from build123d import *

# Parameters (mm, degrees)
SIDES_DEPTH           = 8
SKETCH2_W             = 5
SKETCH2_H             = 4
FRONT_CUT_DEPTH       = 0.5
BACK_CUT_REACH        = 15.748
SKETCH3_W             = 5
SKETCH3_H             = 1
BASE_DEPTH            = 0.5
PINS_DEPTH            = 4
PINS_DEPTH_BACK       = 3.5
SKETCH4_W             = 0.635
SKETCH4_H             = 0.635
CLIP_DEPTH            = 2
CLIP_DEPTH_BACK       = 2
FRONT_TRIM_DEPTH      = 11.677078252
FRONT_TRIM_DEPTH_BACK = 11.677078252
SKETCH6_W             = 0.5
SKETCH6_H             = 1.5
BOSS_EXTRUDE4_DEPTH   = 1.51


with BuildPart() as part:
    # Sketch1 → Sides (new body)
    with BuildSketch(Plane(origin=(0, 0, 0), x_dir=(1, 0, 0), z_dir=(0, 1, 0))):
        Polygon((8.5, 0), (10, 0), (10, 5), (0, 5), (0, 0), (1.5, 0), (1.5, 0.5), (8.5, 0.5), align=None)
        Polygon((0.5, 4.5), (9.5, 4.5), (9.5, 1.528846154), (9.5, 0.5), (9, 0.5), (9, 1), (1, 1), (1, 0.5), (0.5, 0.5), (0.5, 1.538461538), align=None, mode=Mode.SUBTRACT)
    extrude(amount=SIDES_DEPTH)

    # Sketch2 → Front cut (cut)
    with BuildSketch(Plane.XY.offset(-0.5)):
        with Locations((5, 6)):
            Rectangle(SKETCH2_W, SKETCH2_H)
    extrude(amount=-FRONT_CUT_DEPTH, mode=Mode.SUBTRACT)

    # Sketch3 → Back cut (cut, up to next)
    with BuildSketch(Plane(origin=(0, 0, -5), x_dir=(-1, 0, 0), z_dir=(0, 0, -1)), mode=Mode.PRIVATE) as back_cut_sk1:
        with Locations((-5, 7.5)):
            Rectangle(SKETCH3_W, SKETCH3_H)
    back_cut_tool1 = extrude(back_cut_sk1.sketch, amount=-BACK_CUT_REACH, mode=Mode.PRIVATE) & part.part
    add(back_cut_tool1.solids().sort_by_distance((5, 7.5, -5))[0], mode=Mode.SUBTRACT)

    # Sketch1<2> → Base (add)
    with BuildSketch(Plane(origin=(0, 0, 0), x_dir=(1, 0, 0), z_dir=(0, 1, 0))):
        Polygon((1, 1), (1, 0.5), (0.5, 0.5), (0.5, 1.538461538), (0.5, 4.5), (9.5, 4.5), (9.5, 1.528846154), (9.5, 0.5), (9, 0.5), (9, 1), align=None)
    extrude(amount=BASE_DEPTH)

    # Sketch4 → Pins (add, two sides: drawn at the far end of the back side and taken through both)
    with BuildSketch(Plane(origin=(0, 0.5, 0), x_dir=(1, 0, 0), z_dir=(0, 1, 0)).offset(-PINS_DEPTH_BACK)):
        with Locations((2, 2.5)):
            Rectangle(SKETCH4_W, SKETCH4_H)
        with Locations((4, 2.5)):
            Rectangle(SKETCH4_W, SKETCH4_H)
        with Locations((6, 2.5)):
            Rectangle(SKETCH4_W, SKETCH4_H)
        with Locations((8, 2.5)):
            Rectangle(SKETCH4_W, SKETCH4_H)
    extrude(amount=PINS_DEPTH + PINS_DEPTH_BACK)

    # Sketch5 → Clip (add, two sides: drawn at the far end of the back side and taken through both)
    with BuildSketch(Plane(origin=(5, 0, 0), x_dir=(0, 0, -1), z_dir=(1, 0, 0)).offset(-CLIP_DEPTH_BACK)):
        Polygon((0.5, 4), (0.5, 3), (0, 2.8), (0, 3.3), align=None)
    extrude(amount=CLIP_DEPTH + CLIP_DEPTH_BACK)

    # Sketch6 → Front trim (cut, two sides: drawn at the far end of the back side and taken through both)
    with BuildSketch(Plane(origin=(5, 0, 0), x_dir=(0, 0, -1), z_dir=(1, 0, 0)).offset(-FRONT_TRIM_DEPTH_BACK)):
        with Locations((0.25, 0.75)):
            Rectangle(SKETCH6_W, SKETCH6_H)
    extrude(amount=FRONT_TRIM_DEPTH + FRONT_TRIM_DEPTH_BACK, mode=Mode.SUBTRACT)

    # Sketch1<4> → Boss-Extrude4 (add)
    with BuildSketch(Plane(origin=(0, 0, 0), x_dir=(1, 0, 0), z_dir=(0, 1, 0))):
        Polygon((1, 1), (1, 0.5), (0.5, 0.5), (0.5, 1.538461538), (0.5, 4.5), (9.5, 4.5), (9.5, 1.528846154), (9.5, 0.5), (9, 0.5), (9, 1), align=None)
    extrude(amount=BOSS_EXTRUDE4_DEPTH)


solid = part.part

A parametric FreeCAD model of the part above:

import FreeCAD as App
import Part
import Sketcher

V = App.Vector


def add_polygon(sketch, points):
    """Adds a closed chain of lines whose ends are joined by coincident constraints."""
    first, n = sketch.GeometryCount, len(points)
    for a, b in zip(points, points[1:] + points[:1]):
        sketch.addGeometry(Part.LineSegment(App.Vector(*a, 0), App.Vector(*b, 0)), False)
    for i in range(n):
        sketch.addConstraint(Sketcher.Constraint("Coincident", first + i, 2, first + (i + 1) % n, 1))

doc = App.newDocument("Part")
body = doc.addObject("PartDesign::Body", "Body")

# Sketch on XZ plane
sketch1 = body.newObject("Sketcher::SketchObject", "Sketch")
sketch1.AttachmentSupport = (doc.getObject("XZ_Plane"), [""])
sketch1.MapMode = "FlatFace"
add_polygon(sketch1, [(8.5, 0), (10, 0), (10, -5), (0, -5), (0, 0), (1.5, 0), (1.5, -0.5), (8.5, -0.5)])  # lines 0-7
add_polygon(sketch1, [(0.5, -0.5), (0.5, -4.5), (9.5, -4.5), (9.5, -0.5), (9, -0.5), (9, -1), (1, -1), (1, -0.5)])  # lines 8-15
sketch1.addConstraint([
    Sketcher.Constraint("Horizontal", 0),
    Sketcher.Constraint("Vertical", 1),
    Sketcher.Constraint("Horizontal", 2),
    Sketcher.Constraint("Vertical", 3),
    Sketcher.Constraint("Horizontal", 4),
    Sketcher.Constraint("Vertical", 5),
    Sketcher.Constraint("Horizontal", 6),
    Sketcher.Constraint("Vertical", 7),
    Sketcher.Constraint("Vertical", 8),
    Sketcher.Constraint("Horizontal", 9),
    Sketcher.Constraint("Vertical", 10),
    Sketcher.Constraint("Horizontal", 11),
    Sketcher.Constraint("Vertical", 12),
    Sketcher.Constraint("Horizontal", 13),
    Sketcher.Constraint("Vertical", 14),
    Sketcher.Constraint("Horizontal", 15),
    Sketcher.Constraint("Coincident", 3, 2, -1, 1),
    Sketcher.Constraint("PointOnObject", 0, 2, -1),
    Sketcher.Constraint("Horizontal", 6, 2, 10, 2),
    Sketcher.Constraint("Horizontal", 11, 2, 14, 2),
    Sketcher.Constraint("Equal", 0, 4),
    Sketcher.Constraint("Equal", 11, 15),
    Sketcher.Constraint("Equal", 15, 5),
    Sketcher.Constraint("Equal", 7, 12),
    Sketcher.Constraint("DistanceX", 2, 2, 2, 1, 10.0),
    Sketcher.Constraint("DistanceX", 6, 1, 6, 2, 7.0),
    Sketcher.Constraint("DistanceX", 9, 1, 9, 2, 9.0),
    Sketcher.Constraint("DistanceX", 13, 2, 13, 1, 8.0),
    Sketcher.Constraint("DistanceY", 1, 2, 1, 1, 5.0),
    Sketcher.Constraint("DistanceY", 8, 2, 8, 1, 4.0),
    Sketcher.Constraint("DistanceX", -1, 1, 11, 2, 9.0),
])
pad1 = body.newObject("PartDesign::Pad", "Pad")
pad1.Profile = sketch1
pad1.Length = 8
pad1.Reversed = True

# Sketch on XY plane
sketch2 = body.newObject("Sketcher::SketchObject", "Sketch001")
sketch2.AttachmentSupport = (doc.getObject("XY_Plane"), [""])
sketch2.MapMode = "FlatFace"
sketch2.AttachmentOffset = App.Placement(V(0, 0, -0.5), App.Rotation())
add_polygon(sketch2, [(2.5, 8), (2.5, 4), (7.5, 4), (7.5, 8)])  # lines 0-3
sketch2.addConstraint([
    Sketcher.Constraint("Vertical", 0),
    Sketcher.Constraint("Horizontal", 1),
    Sketcher.Constraint("Vertical", 2),
    Sketcher.Constraint("Horizontal", 3),
    Sketcher.Constraint("DistanceX", 1, 1, 1, 2, 5.0),
    Sketcher.Constraint("DistanceY", 0, 2, 0, 1, 4.0),
    Sketcher.Constraint("DistanceY", -1, 1, 0, 2, 4.0),
    Sketcher.Constraint("DistanceX", -1, 1, 0, 2, 2.5),
])
pocket1 = body.newObject("PartDesign::Pocket", "Pocket")
pocket1.Profile = sketch2
pocket1.Length = 0.5

# Sketch on XY plane
sketch3 = body.newObject("Sketcher::SketchObject", "Sketch002")
sketch3.AttachmentSupport = (doc.getObject("XY_Plane"), [""])
sketch3.MapMode = "FlatFace"
sketch3.AttachmentOffset = App.Placement(V(0, 0, -5), App.Rotation())
add_polygon(sketch3, [(7.5, 8), (7.5, 7), (2.5, 7), (2.5, 8)])  # lines 0-3
sketch3.addConstraint([
    Sketcher.Constraint("Vertical", 0),
    Sketcher.Constraint("Horizontal", 1),
    Sketcher.Constraint("Vertical", 2),
    Sketcher.Constraint("Horizontal", 3),
    Sketcher.Constraint("DistanceX", 1, 2, 1, 1, 5.0),
    Sketcher.Constraint("DistanceY", 0, 2, 0, 1, 1.0),
    Sketcher.Constraint("DistanceY", -1, 1, 0, 2, 7.0),
    Sketcher.Constraint("DistanceX", -1, 1, 0, 2, 7.5),
])
pocket2 = body.newObject("PartDesign::Pocket", "Pocket001")
pocket2.Profile = sketch3
pocket2.Type = "UpToFirst"
pocket2.Reversed = True

# Sketch on XZ plane
sketch4 = body.newObject("Sketcher::SketchObject", "Sketch003")
sketch4.AttachmentSupport = (doc.getObject("XZ_Plane"), [""])
sketch4.MapMode = "FlatFace"
add_polygon(sketch4, [(1, -0.5), (1, -1), (9, -1), (9, -0.5), (9.5, -0.5), (9.5, -4.5), (0.5, -4.5), (0.5, -0.5)])  # lines 0-7
sketch4.addConstraint([
    Sketcher.Constraint("Vertical", 0),
    Sketcher.Constraint("Horizontal", 1),
    Sketcher.Constraint("Vertical", 2),
    Sketcher.Constraint("Horizontal", 3),
    Sketcher.Constraint("Vertical", 4),
    Sketcher.Constraint("Horizontal", 5),
    Sketcher.Constraint("Vertical", 6),
    Sketcher.Constraint("Horizontal", 7),
    Sketcher.Constraint("Horizontal", 3, 2, 6, 2),
    Sketcher.Constraint("Equal", 3, 7),
    Sketcher.Constraint("Equal", 7, 0),
    Sketcher.Constraint("DistanceX", 1, 1, 1, 2, 8.0),
    Sketcher.Constraint("DistanceX", 5, 2, 5, 1, 9.0),
    Sketcher.Constraint("DistanceY", 4, 2, 4, 1, 4.0),
    Sketcher.Constraint("DistanceX", -1, 1, 0, 2, 1.0),
    Sketcher.Constraint("DistanceY", 0, 2, -1, 1, 1.0),
])
pad2 = body.newObject("PartDesign::Pad", "Pad001")
pad2.Profile = sketch4
pad2.Length = 0.5
pad2.Reversed = True

# Sketch on XZ plane
sketch5 = body.newObject("Sketcher::SketchObject", "Sketch004")
sketch5.AttachmentSupport = (doc.getObject("XZ_Plane"), [""])
sketch5.MapMode = "FlatFace"
sketch5.AttachmentOffset = App.Placement(V(0, 0, -0.5), App.Rotation())
add_polygon(sketch5, [(1.7, -2.8), (1.7, -2.2), (2.3, -2.2), (2.3, -2.8)])  # lines 0-3
add_polygon(sketch5, [(3.7, -2.8), (3.7, -2.2), (4.3, -2.2), (4.3, -2.8)])  # lines 4-7
add_polygon(sketch5, [(5.7, -2.8), (5.7, -2.2), (6.3, -2.2), (6.3, -2.8)])  # lines 8-11
add_polygon(sketch5, [(7.7, -2.8), (7.7, -2.2), (8.3, -2.2), (8.3, -2.8)])  # lines 12-15
sketch5.addConstraint([
    Sketcher.Constraint("Vertical", 0),
    Sketcher.Constraint("Horizontal", 1),
    Sketcher.Constraint("Vertical", 2),
    Sketcher.Constraint("Horizontal", 3),
    Sketcher.Constraint("Vertical", 4),
    Sketcher.Constraint("Horizontal", 5),
    Sketcher.Constraint("Vertical", 6),
    Sketcher.Constraint("Horizontal", 7),
    Sketcher.Constraint("Vertical", 8),
    Sketcher.Constraint("Horizontal", 9),
    Sketcher.Constraint("Vertical", 10),
    Sketcher.Constraint("Horizontal", 11),
    Sketcher.Constraint("Vertical", 12),
    Sketcher.Constraint("Horizontal", 13),
    Sketcher.Constraint("Vertical", 14),
    Sketcher.Constraint("Horizontal", 15),
    Sketcher.Constraint("Horizontal", 1, 2, 4, 2),
    Sketcher.Constraint("Horizontal", 3, 2, 6, 2),
    Sketcher.Constraint("Horizontal", 5, 2, 8, 2),
    Sketcher.Constraint("Horizontal", 7, 2, 10, 2),
    Sketcher.Constraint("Horizontal", 9, 2, 12, 2),
    Sketcher.Constraint("Horizontal", 11, 2, 14, 2),
    Sketcher.Constraint("Equal", 3, 5),
    Sketcher.Constraint("Equal", 7, 9),
    Sketcher.Constraint("Equal", 11, 13),
    Sketcher.Constraint("Equal", 15, 0),
    Sketcher.Constraint("DistanceX", 0, 2, 4, 2, 2.0),
    Sketcher.Constraint("DistanceX", 4, 2, 8, 2, 2.0),
    Sketcher.Constraint("DistanceX", 8, 2, 12, 2, 2.0),
    Sketcher.Constraint("DistanceX", 1, 1, 1, 2, 0.635),
    Sketcher.Constraint("DistanceX", -1, 1, 0, 2, 1.6825),
    Sketcher.Constraint("DistanceY", 0, 2, -1, 1, 2.1825),
])
pad3 = body.newObject("PartDesign::Pad", "Pad002")
pad3.Profile = sketch5
pad3.Type = "TwoLengths"
pad3.Length = 4
pad3.Length2 = 3.5
pad3.Reversed = True

# Sketch on YZ plane
sketch6 = body.newObject("Sketcher::SketchObject", "Sketch005")
sketch6.AttachmentSupport = (doc.getObject("YZ_Plane"), [""])
sketch6.MapMode = "FlatFace"
sketch6.AttachmentOffset = App.Placement(V(0, 0, 5), App.Rotation())
add_polygon(sketch6, [(3, -0.5), (4, -0.5), (3.3, 0), (2.8, 0)])  # lines 0-3
sketch6.addConstraint([
    Sketcher.Constraint("Horizontal", 0),
    Sketcher.Constraint("Horizontal", 2),
    Sketcher.Constraint("PointOnObject", 1, 2, -1),
    Sketcher.Constraint("DistanceX", 0, 1, 0, 2, 1.0),
    Sketcher.Constraint("DistanceX", 2, 2, 2, 1, 0.5),
    Sketcher.Constraint("DistanceX", -1, 1, 0, 2, 4.0),
    Sketcher.Constraint("DistanceY", 0, 2, -1, 1, 0.5),
    Sketcher.Constraint("DistanceX", -1, 1, 1, 2, 3.3),
])
pad4 = body.newObject("PartDesign::Pad", "Pad003")
pad4.Profile = sketch6
pad4.Type = "TwoLengths"
pad4.Length = 2
pad4.Length2 = 2

# Sketch on YZ plane
sketch7 = body.newObject("Sketcher::SketchObject", "Sketch006")
sketch7.AttachmentSupport = (doc.getObject("YZ_Plane"), [""])
sketch7.MapMode = "FlatFace"
sketch7.AttachmentOffset = App.Placement(V(0, 0, 5), App.Rotation())
add_polygon(sketch7, [(1.5, 0), (0, 0), (0, -0.5), (1.5, -0.5)])  # lines 0-3
sketch7.addConstraint([
    Sketcher.Constraint("Horizontal", 0),
    Sketcher.Constraint("Vertical", 1),
    Sketcher.Constraint("Horizontal", 2),
    Sketcher.Constraint("Vertical", 3),
    Sketcher.Constraint("Coincident", 0, 2, -1, 1),
    Sketcher.Constraint("DistanceX", 0, 2, 0, 1, 1.5),
    Sketcher.Constraint("DistanceY", 1, 2, 1, 1, 0.5),
])
pocket3 = body.newObject("PartDesign::Pocket", "Pocket002")
pocket3.Profile = sketch7
pocket3.Type = "ThroughAll"
pocket3.Midplane = True

# Sketch on XZ plane
sketch8 = body.newObject("Sketcher::SketchObject", "Sketch007")
sketch8.AttachmentSupport = (doc.getObject("XZ_Plane"), [""])
sketch8.MapMode = "FlatFace"
add_polygon(sketch8, [(1, -0.5), (1, -1), (9, -1), (9, -0.5), (9.5, -0.5), (9.5, -4.5), (0.5, -4.5), (0.5, -0.5)])  # lines 0-7
sketch8.addConstraint([
    Sketcher.Constraint("Vertical", 0),
    Sketcher.Constraint("Horizontal", 1),
    Sketcher.Constraint("Vertical", 2),
    Sketcher.Constraint("Horizontal", 3),
    Sketcher.Constraint("Vertical", 4),
    Sketcher.Constraint("Horizontal", 5),
    Sketcher.Constraint("Vertical", 6),
    Sketcher.Constraint("Horizontal", 7),
    Sketcher.Constraint("Horizontal", 3, 2, 6, 2),
    Sketcher.Constraint("Equal", 3, 7),
    Sketcher.Constraint("Equal", 7, 0),
    Sketcher.Constraint("DistanceX", 1, 1, 1, 2, 8.0),
    Sketcher.Constraint("DistanceX", 5, 2, 5, 1, 9.0),
    Sketcher.Constraint("DistanceY", 4, 2, 4, 1, 4.0),
    Sketcher.Constraint("DistanceX", -1, 1, 0, 2, 1.0),
    Sketcher.Constraint("DistanceY", 0, 2, -1, 1, 1.0),
])
pad5 = body.newObject("PartDesign::Pad", "Pad004")
pad5.Profile = sketch8
pad5.Length = 1.51
pad5.Reversed = True

doc.recompute()
